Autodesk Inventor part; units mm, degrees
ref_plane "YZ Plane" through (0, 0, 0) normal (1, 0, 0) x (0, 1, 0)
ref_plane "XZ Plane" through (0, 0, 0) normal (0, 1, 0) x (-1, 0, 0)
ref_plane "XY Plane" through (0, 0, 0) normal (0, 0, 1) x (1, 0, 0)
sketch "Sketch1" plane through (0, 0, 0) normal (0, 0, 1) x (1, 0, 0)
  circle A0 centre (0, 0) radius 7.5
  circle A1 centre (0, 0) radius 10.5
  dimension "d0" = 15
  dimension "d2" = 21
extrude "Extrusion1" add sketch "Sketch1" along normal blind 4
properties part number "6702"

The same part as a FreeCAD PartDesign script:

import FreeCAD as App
import Part
import Sketcher

doc = App.newDocument("Part")
body = doc.addObject("PartDesign::Body", "Body")

# Sketch on XY plane
sketch1 = doc.addObject("Sketcher::SketchObject", "Sketch")
body.addObject(sketch1)
sketch1.AttachmentSupport = (doc.XY_Plane, [""])
sketch1.MapMode = "FlatFace"
sketch1.addGeometry([
    Part.Circle(App.Vector(0, 0, 0), App.Vector(0, 0, 1), 10),
    Part.Circle(App.Vector(0, 0, 0), App.Vector(0, 0, 1), 8),
], False)
sketch1.addConstraint([
    Sketcher.Constraint("Coincident", 0, 3, -1, 1),
    Sketcher.Constraint("Coincident", 1, 3, -1, 1),
    Sketcher.Constraint("Diameter", 0, 21.0),
    Sketcher.Constraint("Diameter", 1, 15.0),
])
pad1 = doc.addObject("PartDesign::Pad", "Pad")
body.addObject(pad1)
pad1.Profile = sketch1
pad1.Length = 4

doc.recompute()
